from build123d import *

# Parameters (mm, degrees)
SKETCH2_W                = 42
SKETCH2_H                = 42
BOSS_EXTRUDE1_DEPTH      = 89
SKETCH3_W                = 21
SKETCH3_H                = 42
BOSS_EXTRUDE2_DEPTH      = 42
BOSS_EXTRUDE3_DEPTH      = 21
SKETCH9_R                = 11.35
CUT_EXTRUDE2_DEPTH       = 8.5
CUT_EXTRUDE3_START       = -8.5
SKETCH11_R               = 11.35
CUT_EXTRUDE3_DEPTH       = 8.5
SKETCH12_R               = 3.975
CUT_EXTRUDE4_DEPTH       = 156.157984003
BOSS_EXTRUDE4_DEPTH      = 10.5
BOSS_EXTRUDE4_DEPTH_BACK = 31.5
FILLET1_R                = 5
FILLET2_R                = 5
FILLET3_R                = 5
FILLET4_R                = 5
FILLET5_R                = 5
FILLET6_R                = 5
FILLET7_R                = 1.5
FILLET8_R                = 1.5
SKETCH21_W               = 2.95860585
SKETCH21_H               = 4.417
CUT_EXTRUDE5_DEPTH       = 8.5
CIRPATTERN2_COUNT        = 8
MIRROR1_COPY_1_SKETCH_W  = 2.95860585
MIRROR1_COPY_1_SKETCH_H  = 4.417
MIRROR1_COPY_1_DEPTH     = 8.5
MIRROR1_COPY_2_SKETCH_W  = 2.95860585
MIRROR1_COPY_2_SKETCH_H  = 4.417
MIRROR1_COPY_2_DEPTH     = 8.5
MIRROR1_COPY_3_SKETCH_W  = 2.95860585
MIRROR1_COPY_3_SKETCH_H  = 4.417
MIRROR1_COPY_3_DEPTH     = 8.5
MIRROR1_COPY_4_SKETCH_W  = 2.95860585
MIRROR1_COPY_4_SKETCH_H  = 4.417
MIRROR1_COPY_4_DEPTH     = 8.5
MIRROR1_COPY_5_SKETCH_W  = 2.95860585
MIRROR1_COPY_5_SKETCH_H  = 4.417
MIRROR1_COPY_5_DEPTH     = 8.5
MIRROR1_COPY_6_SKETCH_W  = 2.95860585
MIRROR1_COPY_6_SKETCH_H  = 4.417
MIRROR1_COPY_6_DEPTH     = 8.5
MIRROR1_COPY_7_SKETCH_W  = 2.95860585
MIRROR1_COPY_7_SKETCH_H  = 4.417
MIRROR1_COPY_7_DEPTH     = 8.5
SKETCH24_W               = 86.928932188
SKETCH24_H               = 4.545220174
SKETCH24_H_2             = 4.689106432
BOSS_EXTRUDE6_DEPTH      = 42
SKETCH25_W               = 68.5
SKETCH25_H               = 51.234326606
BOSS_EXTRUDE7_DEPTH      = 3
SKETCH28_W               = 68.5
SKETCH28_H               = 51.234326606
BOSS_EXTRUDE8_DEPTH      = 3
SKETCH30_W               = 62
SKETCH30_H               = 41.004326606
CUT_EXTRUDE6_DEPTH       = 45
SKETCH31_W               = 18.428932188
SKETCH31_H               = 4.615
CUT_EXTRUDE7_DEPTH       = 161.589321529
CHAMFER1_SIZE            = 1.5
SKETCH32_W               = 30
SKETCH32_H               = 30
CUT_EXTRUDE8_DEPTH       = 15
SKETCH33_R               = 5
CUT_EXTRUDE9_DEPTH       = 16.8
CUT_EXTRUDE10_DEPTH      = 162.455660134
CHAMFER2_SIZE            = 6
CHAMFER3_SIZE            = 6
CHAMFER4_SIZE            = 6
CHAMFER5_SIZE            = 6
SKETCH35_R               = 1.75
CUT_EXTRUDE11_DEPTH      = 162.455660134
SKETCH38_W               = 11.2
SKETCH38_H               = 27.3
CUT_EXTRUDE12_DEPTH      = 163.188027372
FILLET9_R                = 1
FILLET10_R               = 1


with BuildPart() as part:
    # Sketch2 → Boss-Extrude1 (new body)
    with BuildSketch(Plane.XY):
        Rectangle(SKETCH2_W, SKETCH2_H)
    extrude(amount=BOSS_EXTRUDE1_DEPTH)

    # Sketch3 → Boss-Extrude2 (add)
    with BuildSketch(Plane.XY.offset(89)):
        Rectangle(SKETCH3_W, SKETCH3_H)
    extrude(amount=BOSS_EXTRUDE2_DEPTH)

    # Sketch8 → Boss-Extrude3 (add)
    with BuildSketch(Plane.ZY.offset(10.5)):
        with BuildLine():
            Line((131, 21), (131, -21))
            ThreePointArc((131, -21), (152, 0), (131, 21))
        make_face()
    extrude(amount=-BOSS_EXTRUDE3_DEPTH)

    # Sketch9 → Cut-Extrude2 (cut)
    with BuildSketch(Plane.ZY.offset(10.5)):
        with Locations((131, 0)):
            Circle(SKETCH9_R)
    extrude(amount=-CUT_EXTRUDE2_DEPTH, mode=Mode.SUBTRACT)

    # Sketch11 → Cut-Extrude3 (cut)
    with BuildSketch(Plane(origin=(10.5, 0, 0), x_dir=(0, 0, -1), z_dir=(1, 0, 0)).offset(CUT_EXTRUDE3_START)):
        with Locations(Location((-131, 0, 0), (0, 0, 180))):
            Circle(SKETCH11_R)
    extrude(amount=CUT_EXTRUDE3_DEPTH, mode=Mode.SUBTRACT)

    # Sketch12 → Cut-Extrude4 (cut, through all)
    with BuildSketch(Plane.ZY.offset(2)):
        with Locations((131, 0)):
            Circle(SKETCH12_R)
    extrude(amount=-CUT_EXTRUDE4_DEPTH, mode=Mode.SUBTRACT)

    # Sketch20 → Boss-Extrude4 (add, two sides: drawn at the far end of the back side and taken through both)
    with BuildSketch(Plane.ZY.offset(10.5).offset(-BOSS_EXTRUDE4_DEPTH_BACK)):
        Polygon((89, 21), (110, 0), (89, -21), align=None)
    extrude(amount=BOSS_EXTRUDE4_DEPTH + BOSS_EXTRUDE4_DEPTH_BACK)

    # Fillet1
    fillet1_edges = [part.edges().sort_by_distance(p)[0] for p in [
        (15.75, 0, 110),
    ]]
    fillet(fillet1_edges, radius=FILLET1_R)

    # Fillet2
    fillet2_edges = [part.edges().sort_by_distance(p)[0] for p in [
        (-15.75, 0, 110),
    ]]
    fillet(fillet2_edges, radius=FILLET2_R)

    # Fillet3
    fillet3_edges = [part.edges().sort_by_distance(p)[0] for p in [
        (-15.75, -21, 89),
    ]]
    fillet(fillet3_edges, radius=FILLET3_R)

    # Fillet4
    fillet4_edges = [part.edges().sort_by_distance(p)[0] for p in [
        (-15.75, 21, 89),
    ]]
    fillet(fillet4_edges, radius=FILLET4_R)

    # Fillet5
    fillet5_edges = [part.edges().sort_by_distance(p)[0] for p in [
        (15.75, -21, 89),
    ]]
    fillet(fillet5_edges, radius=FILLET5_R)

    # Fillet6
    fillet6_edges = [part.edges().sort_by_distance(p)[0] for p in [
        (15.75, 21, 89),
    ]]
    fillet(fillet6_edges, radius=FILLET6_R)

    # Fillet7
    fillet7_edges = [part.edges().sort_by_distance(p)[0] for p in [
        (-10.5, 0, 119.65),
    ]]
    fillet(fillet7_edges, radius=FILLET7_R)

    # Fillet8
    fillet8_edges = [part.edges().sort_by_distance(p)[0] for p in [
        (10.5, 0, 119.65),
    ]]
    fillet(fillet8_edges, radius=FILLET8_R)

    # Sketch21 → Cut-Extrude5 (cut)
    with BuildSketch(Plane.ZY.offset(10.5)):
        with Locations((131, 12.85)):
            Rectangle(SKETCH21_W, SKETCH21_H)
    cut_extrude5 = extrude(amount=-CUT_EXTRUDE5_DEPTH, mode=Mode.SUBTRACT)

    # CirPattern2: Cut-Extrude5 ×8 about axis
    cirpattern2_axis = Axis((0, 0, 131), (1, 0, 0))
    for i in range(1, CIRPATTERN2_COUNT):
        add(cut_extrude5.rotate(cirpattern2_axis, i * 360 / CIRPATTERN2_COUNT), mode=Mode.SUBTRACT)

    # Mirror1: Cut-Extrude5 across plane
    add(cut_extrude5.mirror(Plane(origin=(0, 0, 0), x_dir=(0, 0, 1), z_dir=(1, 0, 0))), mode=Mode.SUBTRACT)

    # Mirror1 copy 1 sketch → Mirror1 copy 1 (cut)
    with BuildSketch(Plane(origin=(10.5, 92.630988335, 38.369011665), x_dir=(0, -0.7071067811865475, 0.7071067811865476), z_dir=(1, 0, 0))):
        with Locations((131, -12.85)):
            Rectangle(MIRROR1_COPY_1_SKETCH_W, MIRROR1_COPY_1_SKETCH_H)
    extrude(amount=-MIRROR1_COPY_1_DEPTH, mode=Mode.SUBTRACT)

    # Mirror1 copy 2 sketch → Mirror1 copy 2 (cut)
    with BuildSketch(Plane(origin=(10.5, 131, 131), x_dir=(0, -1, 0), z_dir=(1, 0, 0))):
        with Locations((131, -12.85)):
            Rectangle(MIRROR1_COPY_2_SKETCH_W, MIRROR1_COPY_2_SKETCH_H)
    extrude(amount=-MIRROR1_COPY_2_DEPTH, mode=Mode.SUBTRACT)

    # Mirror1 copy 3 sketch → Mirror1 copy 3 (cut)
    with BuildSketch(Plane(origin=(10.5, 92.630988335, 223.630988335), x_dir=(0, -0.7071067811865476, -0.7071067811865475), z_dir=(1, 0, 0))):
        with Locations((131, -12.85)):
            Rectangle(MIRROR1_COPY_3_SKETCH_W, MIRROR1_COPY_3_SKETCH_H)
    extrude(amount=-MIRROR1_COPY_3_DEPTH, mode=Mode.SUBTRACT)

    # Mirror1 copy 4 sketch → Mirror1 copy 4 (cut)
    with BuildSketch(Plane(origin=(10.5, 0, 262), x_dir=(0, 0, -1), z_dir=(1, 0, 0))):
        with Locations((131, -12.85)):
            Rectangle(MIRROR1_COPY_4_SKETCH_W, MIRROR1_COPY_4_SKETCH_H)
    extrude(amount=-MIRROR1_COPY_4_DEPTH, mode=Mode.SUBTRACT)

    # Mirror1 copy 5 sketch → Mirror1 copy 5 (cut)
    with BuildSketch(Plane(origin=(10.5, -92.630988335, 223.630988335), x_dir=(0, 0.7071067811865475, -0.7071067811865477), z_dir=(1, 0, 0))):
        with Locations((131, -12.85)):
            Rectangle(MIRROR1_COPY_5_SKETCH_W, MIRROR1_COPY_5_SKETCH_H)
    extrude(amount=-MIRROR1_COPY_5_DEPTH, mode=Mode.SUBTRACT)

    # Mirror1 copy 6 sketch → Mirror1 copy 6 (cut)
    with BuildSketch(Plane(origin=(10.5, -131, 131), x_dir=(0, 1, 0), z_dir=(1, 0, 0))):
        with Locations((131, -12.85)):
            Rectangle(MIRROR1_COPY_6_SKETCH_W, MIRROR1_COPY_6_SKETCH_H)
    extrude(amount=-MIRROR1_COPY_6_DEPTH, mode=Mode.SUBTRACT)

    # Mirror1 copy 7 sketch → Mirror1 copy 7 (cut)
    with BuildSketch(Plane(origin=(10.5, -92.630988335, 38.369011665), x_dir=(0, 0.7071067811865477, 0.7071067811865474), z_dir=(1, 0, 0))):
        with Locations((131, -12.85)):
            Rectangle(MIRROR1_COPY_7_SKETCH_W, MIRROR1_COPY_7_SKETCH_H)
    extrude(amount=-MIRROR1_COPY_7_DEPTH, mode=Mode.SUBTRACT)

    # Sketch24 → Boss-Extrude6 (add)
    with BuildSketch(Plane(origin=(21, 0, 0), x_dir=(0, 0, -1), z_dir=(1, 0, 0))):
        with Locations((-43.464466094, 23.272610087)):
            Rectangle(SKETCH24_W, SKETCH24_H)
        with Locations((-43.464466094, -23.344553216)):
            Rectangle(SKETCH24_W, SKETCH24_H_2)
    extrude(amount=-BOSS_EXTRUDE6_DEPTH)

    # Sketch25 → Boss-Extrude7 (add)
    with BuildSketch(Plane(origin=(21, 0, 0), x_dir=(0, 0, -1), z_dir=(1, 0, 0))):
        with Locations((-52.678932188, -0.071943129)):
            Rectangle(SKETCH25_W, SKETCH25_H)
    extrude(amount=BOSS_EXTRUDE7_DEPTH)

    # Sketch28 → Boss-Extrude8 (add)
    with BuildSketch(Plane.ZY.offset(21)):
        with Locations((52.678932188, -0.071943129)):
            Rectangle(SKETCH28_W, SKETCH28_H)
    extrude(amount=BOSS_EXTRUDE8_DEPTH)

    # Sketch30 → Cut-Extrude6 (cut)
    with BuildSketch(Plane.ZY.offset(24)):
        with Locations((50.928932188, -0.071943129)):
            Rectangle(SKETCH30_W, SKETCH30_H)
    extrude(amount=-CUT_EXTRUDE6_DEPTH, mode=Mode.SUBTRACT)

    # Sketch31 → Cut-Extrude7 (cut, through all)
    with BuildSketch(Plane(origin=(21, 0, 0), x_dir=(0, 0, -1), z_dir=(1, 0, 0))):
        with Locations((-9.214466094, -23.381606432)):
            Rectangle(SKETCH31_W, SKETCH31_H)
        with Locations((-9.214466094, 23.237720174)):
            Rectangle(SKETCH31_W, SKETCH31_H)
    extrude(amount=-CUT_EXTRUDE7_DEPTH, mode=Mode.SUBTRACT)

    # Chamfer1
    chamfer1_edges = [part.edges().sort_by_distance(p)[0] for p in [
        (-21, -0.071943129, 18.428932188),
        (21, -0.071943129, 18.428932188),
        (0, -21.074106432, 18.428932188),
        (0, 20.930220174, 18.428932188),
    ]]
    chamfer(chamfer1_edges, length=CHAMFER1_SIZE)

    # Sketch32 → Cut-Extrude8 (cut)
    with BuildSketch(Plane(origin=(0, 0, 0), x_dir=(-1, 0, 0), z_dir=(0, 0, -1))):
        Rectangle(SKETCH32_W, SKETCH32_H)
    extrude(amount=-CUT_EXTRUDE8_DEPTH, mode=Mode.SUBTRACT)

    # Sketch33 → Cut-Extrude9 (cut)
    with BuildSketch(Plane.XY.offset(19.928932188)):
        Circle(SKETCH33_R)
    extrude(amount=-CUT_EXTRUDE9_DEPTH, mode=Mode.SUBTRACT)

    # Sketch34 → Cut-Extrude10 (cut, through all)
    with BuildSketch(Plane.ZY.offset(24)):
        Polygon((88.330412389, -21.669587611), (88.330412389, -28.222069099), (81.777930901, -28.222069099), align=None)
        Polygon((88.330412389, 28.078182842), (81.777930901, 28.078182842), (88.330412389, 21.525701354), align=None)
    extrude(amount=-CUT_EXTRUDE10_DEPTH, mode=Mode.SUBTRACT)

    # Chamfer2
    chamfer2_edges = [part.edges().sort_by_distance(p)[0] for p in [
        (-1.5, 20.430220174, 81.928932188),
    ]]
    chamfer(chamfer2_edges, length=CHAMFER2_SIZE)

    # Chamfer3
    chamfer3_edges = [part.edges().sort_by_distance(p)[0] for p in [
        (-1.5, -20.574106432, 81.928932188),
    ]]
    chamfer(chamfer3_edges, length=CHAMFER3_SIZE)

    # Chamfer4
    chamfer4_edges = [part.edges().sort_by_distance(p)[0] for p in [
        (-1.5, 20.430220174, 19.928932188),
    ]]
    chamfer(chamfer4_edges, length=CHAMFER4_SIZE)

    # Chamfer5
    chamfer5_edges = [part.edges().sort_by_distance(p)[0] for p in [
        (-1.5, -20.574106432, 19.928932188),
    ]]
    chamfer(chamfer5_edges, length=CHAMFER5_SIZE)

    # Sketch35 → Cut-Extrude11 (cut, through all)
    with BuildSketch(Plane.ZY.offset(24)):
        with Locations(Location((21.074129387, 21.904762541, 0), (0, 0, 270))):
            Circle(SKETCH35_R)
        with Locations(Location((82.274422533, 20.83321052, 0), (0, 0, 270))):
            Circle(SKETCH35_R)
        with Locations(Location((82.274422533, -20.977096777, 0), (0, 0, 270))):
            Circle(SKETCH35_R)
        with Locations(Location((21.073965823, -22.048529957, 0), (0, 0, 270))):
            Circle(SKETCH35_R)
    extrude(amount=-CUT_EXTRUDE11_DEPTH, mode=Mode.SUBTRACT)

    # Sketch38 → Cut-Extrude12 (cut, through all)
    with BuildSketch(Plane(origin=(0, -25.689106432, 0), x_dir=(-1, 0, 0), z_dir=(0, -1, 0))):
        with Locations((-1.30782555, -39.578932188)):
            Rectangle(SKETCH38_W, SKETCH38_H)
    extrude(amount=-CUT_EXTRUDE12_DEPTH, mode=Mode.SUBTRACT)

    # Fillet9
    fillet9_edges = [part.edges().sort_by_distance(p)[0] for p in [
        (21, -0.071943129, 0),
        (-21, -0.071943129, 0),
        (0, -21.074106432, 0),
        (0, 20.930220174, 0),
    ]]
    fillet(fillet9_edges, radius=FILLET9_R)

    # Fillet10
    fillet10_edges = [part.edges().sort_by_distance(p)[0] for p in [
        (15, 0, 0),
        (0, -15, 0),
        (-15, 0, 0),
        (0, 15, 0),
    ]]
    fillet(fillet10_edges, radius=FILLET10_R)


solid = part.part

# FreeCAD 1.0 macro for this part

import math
import FreeCAD as App
import Part
import Sketcher

V = App.Vector
Q = App.Units.Quantity


def edges_at(feature, points):
    """Names of the edges that pass closest to the given points."""
    edges = feature.Shape.Edges
    near = lambda p: min(range(len(edges)), key=lambda i: edges[i].distToShape(Part.Vertex(*p))[0])
    return sorted({f"Edge{near(p) + 1}" for p in points})


def add_polygon(sketch, points):
    """Adds a closed chain of lines whose ends are joined by coincident constraints."""
    first, n = sketch.GeometryCount, len(points)
    for a, b in zip(points, points[1:] + points[:1]):
        sketch.addGeometry(Part.LineSegment(App.Vector(*a, 0), App.Vector(*b, 0)), False)
    for i in range(n):
        sketch.addConstraint(Sketcher.Constraint("Coincident", first + i, 2, first + (i + 1) % n, 1))

doc = App.newDocument("Part")
body = doc.addObject("PartDesign::Body", "Body")

# Sketch on XY plane
sketch1 = doc.addObject("Sketcher::SketchObject", "Sketch")
body.addObject(sketch1)
sketch1.AttachmentSupport = (doc.XY_Plane, [""])
sketch1.MapMode = "FlatFace"
add_polygon(sketch1, [(-21, 21), (-21, -21), (21, -21), (21, 21)])  # lines 0-3
sketch1.addConstraint([
    Sketcher.Constraint("Vertical", 0),
    Sketcher.Constraint("Horizontal", 1),
    Sketcher.Constraint("Vertical", 2),
    Sketcher.Constraint("Horizontal", 3),
    Sketcher.Constraint("Symmetric", 0, 2, 2, 2, -1, 1),
    Sketcher.Constraint("Equal", 3, 0),
    Sketcher.Constraint("DistanceX", 1, 1, 1, 2, 42.0),
])
pad1 = doc.addObject("PartDesign::Pad", "Pad")
body.addObject(pad1)
pad1.Profile = sketch1
pad1.Length = 89

# Sketch on XY plane
sketch2 = doc.addObject("Sketcher::SketchObject", "Sketch001")
body.addObject(sketch2)
sketch2.AttachmentSupport = (doc.XY_Plane, [""])
sketch2.MapMode = "FlatFace"
sketch2.AttachmentOffset = App.Placement(V(0, 0, 89), App.Rotation())
add_polygon(sketch2, [(-10, 21), (-10, -21), (10, -21), (10, 21)])  # lines 0-3
sketch2.addConstraint([
    Sketcher.Constraint("Vertical", 0),
    Sketcher.Constraint("Horizontal", 1),
    Sketcher.Constraint("Vertical", 2),
    Sketcher.Constraint("Horizontal", 3),
    Sketcher.Constraint("Symmetric", 0, 2, 2, 2, -1, 1),
    Sketcher.Constraint("DistanceX", 1, 1, 1, 2, 21.0),
    Sketcher.Constraint("DistanceY", 0, 2, 0, 1, 42.0),
])
pad2 = doc.addObject("PartDesign::Pad", "Pad001")
body.addObject(pad2)
pad2.Profile = sketch2
pad2.Length = 42

# Sketch on YZ plane
sketch3 = doc.addObject("Sketcher::SketchObject", "Sketch002")
body.addObject(sketch3)
sketch3.AttachmentSupport = (doc.YZ_Plane, [""])
sketch3.MapMode = "FlatFace"
sketch3.AttachmentOffset = App.Placement(V(0, 0, -10.5), App.Rotation())
sketch3.addGeometry([
    Part.LineSegment(V(21, 131, 0), V(-21, 131, 0)),
    Part.ArcOfCircle(Part.Circle(V(0, 131, 0), V(0, 0, 1), 21), math.radians(0), math.radians(180)),
], False)
sketch3.addConstraint([
    Sketcher.Constraint("Coincident", 0, 1, 1, 1),
    Sketcher.Constraint("Coincident", 1, 2, 0, 2),
    Sketcher.Constraint("Horizontal", 0),
    Sketcher.Constraint("PointOnObject", 1, 3, -2),
    Sketcher.Constraint("Horizontal", 1, 3, 0, 1),
    Sketcher.Constraint("Radius", 1, 21.0),
    Sketcher.Constraint("DistanceY", -1, 1, 1, 3, 131.0),
])
pad3 = doc.addObject("PartDesign::Pad", "Pad002")
body.addObject(pad3)
pad3.Profile = sketch3
pad3.Length = 21

# Sketch on YZ plane
sketch4 = doc.addObject("Sketcher::SketchObject", "Sketch003")
body.addObject(sketch4)
sketch4.AttachmentSupport = (doc.YZ_Plane, [""])
sketch4.MapMode = "FlatFace"
sketch4.AttachmentOffset = App.Placement(V(0, 0, -10.5), App.Rotation())
sketch4.addGeometry(Part.Circle(V(0, 131, 0), V(0, 0, 1), 11), False)
sketch4.addConstraint([
    Sketcher.Constraint("PointOnObject", 0, 3, -2),
    Sketcher.Constraint("Diameter", 0, 22.7),
    Sketcher.Constraint("DistanceY", -1, 1, 0, 3, 131.0),
])
pocket1 = doc.addObject("PartDesign::Pocket", "Pocket")
body.addObject(pocket1)
pocket1.Profile = sketch4
pocket1.Length = 8.5
pocket1.Reversed = True

# Sketch on YZ plane
sketch5 = doc.addObject("Sketcher::SketchObject", "Sketch004")
body.addObject(sketch5)
sketch5.AttachmentSupport = (doc.YZ_Plane, [""])
sketch5.MapMode = "FlatFace"
sketch5.AttachmentOffset = App.Placement(V(0, 0, 2), App.Rotation())
sketch5.addGeometry(Part.Circle(V(0, 131, 0), V(0, 0, 1), 11), False)
sketch5.addConstraint([
    Sketcher.Constraint("PointOnObject", 0, 3, -2),
    Sketcher.Constraint("Diameter", 0, 22.7),
    Sketcher.Constraint("DistanceY", -1, 1, 0, 3, 131.0),
])
pocket2 = doc.addObject("PartDesign::Pocket", "Pocket001")
body.addObject(pocket2)
pocket2.Profile = sketch5
pocket2.Length = 8.5
pocket2.Reversed = True

# Sketch on YZ plane
sketch6 = doc.addObject("Sketcher::SketchObject", "Sketch005")
body.addObject(sketch6)
sketch6.AttachmentSupport = (doc.YZ_Plane, [""])
sketch6.MapMode = "FlatFace"
sketch6.AttachmentOffset = App.Placement(V(0, 0, -2), App.Rotation())
sketch6.addGeometry(Part.Circle(V(0, 131, 0), V(0, 0, 1), 4), False)
sketch6.addConstraint([
    Sketcher.Constraint("PointOnObject", 0, 3, -2),
    Sketcher.Constraint("Diameter", 0, 7.95),
    Sketcher.Constraint("DistanceY", -1, 1, 0, 3, 131.0),
])
pocket3 = doc.addObject("PartDesign::Pocket", "Pocket002")
body.addObject(pocket3)
pocket3.Profile = sketch6
pocket3.Type = "ThroughAll"
pocket3.Reversed = True

# Sketch on YZ plane
sketch7 = doc.addObject("Sketcher::SketchObject", "Sketch006")
body.addObject(sketch7)
sketch7.AttachmentSupport = (doc.YZ_Plane, [""])
sketch7.MapMode = "FlatFace"
sketch7.AttachmentOffset = App.Placement(V(0, 0, -10.5), App.Rotation())
add_polygon(sketch7, [(0, 110), (21, 89), (-21, 89)])  # lines 0-2
sketch7.addConstraint([
    Sketcher.Constraint("Horizontal", 1),
    Sketcher.Constraint("PointOnObject", 2, 2, -2),
    Sketcher.Constraint("Perpendicular", 0, 2),
    Sketcher.Constraint("Equal", 0, 2),
    Sketcher.Constraint("DistanceX", 1, 2, 1, 1, 42.0),
    Sketcher.Constraint("DistanceY", -1, 1, 0, 2, 89.0),
])
pad4 = doc.addObject("PartDesign::Pad", "Pad003")
body.addObject(pad4)
pad4.Profile = sketch7
pad4.Type = "TwoLengths"
pad4.Length = 10.5
pad4.Length2 = 31.5
pad4.Reversed = True
doc.recompute()

fillet = doc.addObject("PartDesign::Fillet", "Fillet")
body.addObject(fillet)
fillet.Base = (pad4, edges_at(pad4, [(15.75, 0, 110)]))
fillet.Radius = 5
doc.recompute()

fillet2 = doc.addObject("PartDesign::Fillet", "Fillet001")
body.addObject(fillet2)
fillet2.Base = (fillet, edges_at(fillet, [(-15.75, 0, 110)]))
fillet2.Radius = 5
doc.recompute()

fillet3 = doc.addObject("PartDesign::Fillet", "Fillet002")
body.addObject(fillet3)
fillet3.Base = (fillet2, edges_at(fillet2, [(-15.75, -21, 89)]))
fillet3.Radius = 5
doc.recompute()

fillet4 = doc.addObject("PartDesign::Fillet", "Fillet003")
body.addObject(fillet4)
fillet4.Base = (fillet3, edges_at(fillet3, [(-15.75, 21, 89)]))
fillet4.Radius = 5
doc.recompute()

fillet5 = doc.addObject("PartDesign::Fillet", "Fillet004")
body.addObject(fillet5)
fillet5.Base = (fillet4, edges_at(fillet4, [(15.75, -21, 89)]))
fillet5.Radius = 5
doc.recompute()

fillet6 = doc.addObject("PartDesign::Fillet", "Fillet005")
body.addObject(fillet6)
fillet6.Base = (fillet5, edges_at(fillet5, [(15.75, 21, 89)]))
fillet6.Radius = 5
doc.recompute()

fillet7 = doc.addObject("PartDesign::Fillet", "Fillet006")
body.addObject(fillet7)
fillet7.Base = (fillet6, edges_at(fillet6, [(-10.5, 0, 119.65)]))
fillet7.Radius = 1.5
doc.recompute()

fillet8 = doc.addObject("PartDesign::Fillet", "Fillet007")
body.addObject(fillet8)
fillet8.Base = (fillet7, edges_at(fillet7, [(10.5, 0, 119.65)]))
fillet8.Radius = 1.5

# Sketch on YZ plane
sketch8 = doc.addObject("Sketcher::SketchObject", "Sketch007")
body.addObject(sketch8)
sketch8.AttachmentSupport = (doc.YZ_Plane, [""])
sketch8.MapMode = "FlatFace"
sketch8.AttachmentOffset = App.Placement(V(0, 0, -10.5), App.Rotation())
add_polygon(sketch8, [(15.1, 129.5), (10.6, 129.5), (10.6, 132.5), (15.1, 132.5)])  # lines 0-3
sketch8.addConstraint([
    Sketcher.Constraint("Horizontal", 0),
    Sketcher.Constraint("Vertical", 1),
    Sketcher.Constraint("Horizontal", 2),
    Sketcher.Constraint("Vertical", 3),
    Sketcher.Constraint("DistanceX", 0, 2, 0, 1, 4.417),
    Sketcher.Constraint("DistanceX", -1, 1, 0, 2, 10.6415),
    Sketcher.Constraint("DistanceY", 1, 1, 1, 2, 2.958606),
    Sketcher.Constraint("DistanceY", -1, 1, 0, 2, 129.520697),
])
pocket4 = doc.addObject("PartDesign::Pocket", "Pocket003")
body.addObject(pocket4)
pocket4.Profile = sketch8
pocket4.Length = 8.5
pocket4.Reversed = True
doc.recompute()

datumline = doc.addObject("PartDesign::Line", "DatumLine")
body.addObject(datumline)
datumline.Placement = App.Placement(V(0, 0, 131), App.Rotation(V(0, 0, 1), V(1, 0, 0)))
polarpattern = doc.addObject("PartDesign::PolarPattern", "PolarPattern")
body.addObject(polarpattern)
polarpattern.Originals = [pocket4]
polarpattern.Axis = (datumline, [""])
polarpattern.Angle = 360
polarpattern.Occurrences = 8
body.Tip = polarpattern
doc.recompute()

mirrored = doc.addObject("PartDesign::Mirrored", "Mirrored")
body.addObject(mirrored)
mirrored.Originals = [pocket4]
mirrored.MirrorPlane = (doc.YZ_Plane, [""])
body.Tip = mirrored

# Sketch on YZ plane
sketch9 = doc.addObject("Sketcher::SketchObject", "Sketch008")
body.addObject(sketch9)
sketch9.AttachmentSupport = (doc.YZ_Plane, [""])
sketch9.MapMode = "FlatFace"
sketch9.AttachmentOffset = App.Placement(V(0, 0, 10.5), App.Rotation())
add_polygon(sketch9, [(8.6, 137.5), (11.7, 140.6), (9.6, 142.7), (6.5, 139.6)])  # lines 0-3
sketch9.addConstraint([
    Sketcher.Constraint("Perpendicular", 0, 1),
    Sketcher.Constraint("Perpendicular", 1, 2),
    Sketcher.Constraint("Perpendicular", 2, 3),
    Sketcher.Constraint("Angle", 0, Q("45 deg")),
    Sketcher.Constraint("Distance", 0, 4.417),
    Sketcher.Constraint("DistanceY", -1, 1, 2, 2, 139.570702),
    Sketcher.Constraint("DistanceX", -1, 1, 3, 2, 8.570702),
    Sketcher.Constraint("DistanceX", -1, 1, 2, 2, 6.478652),
])
pocket5 = doc.addObject("PartDesign::Pocket", "Pocket004")
body.addObject(pocket5)
pocket5.Profile = sketch9
pocket5.Length = 8.5

# Sketch on YZ plane
sketch10 = doc.addObject("Sketcher::SketchObject", "Sketch009")
body.addObject(sketch10)
sketch10.AttachmentSupport = (doc.YZ_Plane, [""])
sketch10.MapMode = "FlatFace"
sketch10.AttachmentOffset = App.Placement(V(0, 0, 10.5), App.Rotation())
add_polygon(sketch10, [(1.5, 141.6), (1.5, 146.1), (-1.5, 146.1), (-1.5, 141.6)])  # lines 0-3
sketch10.addConstraint([
    Sketcher.Constraint("Vertical", 0),
    Sketcher.Constraint("Horizontal", 1),
    Sketcher.Constraint("Vertical", 2),
    Sketcher.Constraint("Horizontal", 3),
    Sketcher.Constraint("DistanceY", 0, 1, 0, 2, 4.417),
    Sketcher.Constraint("DistanceY", -1, 1, 0, 2, 146.0585),
    Sketcher.Constraint("DistanceX", 1, 2, 1, 1, 2.958606),
    Sketcher.Constraint("DistanceX", -1, 1, 0, 2, 1.479303),
])
pocket6 = doc.addObject("PartDesign::Pocket", "Pocket005")
body.addObject(pocket6)
pocket6.Profile = sketch10
pocket6.Length = 8.5

# Sketch on YZ plane
sketch11 = doc.addObject("Sketcher::SketchObject", "Sketch010")
body.addObject(sketch11)
sketch11.AttachmentSupport = (doc.YZ_Plane, [""])
sketch11.MapMode = "FlatFace"
sketch11.AttachmentOffset = App.Placement(V(0, 0, 10.5), App.Rotation())
add_polygon(sketch11, [(-6.5, 139.6), (-9.6, 142.7), (-11.7, 140.6), (-8.6, 137.5)])  # lines 0-3
sketch11.addConstraint([
    Sketcher.Constraint("Perpendicular", 0, 1),
    Sketcher.Constraint("Perpendicular", 1, 2),
    Sketcher.Constraint("Perpendicular", 2, 3),
    Sketcher.Constraint("Angle", 0, Q("135 deg")),
    Sketcher.Constraint("Distance", 0, 4.417),
    Sketcher.Constraint("DistanceX", 2, 2, -1, 1, 8.570702),
    Sketcher.Constraint("DistanceY", -1, 1, 3, 2, 139.570702),
    Sketcher.Constraint("DistanceY", -1, 1, 2, 2, 137.478652),
])
pocket7 = doc.addObject("PartDesign::Pocket", "Pocket006")
body.addObject(pocket7)
pocket7.Profile = sketch11
pocket7.Length = 8.5

# Sketch on YZ plane
sketch12 = doc.addObject("Sketcher::SketchObject", "Sketch011")
body.addObject(sketch12)
sketch12.AttachmentSupport = (doc.YZ_Plane, [""])
sketch12.MapMode = "FlatFace"
sketch12.AttachmentOffset = App.Placement(V(0, 0, 10.5), App.Rotation())
add_polygon(sketch12, [(-10.6, 132.5), (-15.1, 132.5), (-15.1, 129.5), (-10.6, 129.5)])  # lines 0-3
sketch12.addConstraint([
    Sketcher.Constraint("Horizontal", 0),
    Sketcher.Constraint("Vertical", 1),
    Sketcher.Constraint("Horizontal", 2),
    Sketcher.Constraint("Vertical", 3),
    Sketcher.Constraint("DistanceX", 0, 2, 0, 1, 4.417),
    Sketcher.Constraint("DistanceX", 0, 2, -1, 1, 15.0585),
    Sketcher.Constraint("DistanceY", 1, 2, 1, 1, 2.958606),
    Sketcher.Constraint("DistanceY", -1, 1, 0, 2, 132.479303),
])
pocket8 = doc.addObject("PartDesign::Pocket", "Pocket007")
body.addObject(pocket8)
pocket8.Profile = sketch12
pocket8.Length = 8.5

# Sketch on YZ plane
sketch13 = doc.addObject("Sketcher::SketchObject", "Sketch012")
body.addObject(sketch13)
sketch13.AttachmentSupport = (doc.YZ_Plane, [""])
sketch13.MapMode = "FlatFace"
sketch13.AttachmentOffset = App.Placement(V(0, 0, 10.5), App.Rotation())
add_polygon(sketch13, [(-8.6, 124.5), (-11.7, 121.4), (-9.6, 119.3), (-6.5, 122.4)])  # lines 0-3
sketch13.addConstraint([
    Sketcher.Constraint("Perpendicular", 0, 1),
    Sketcher.Constraint("Perpendicular", 1, 2),
    Sketcher.Constraint("Perpendicular", 2, 3),
    Sketcher.Constraint("Angle", 0, Q("-135 deg")),
    Sketcher.Constraint("Distance", 0, 4.417),
    Sketcher.Constraint("DistanceY", -1, 1, 2, 2, 122.429298),
    Sketcher.Constraint("DistanceX", 3, 2, -1, 1, 8.570702),
    Sketcher.Constraint("DistanceX", 2, 2, -1, 1, 6.478652),
])
pocket9 = doc.addObject("PartDesign::Pocket", "Pocket008")
body.addObject(pocket9)
pocket9.Profile = sketch13
pocket9.Length = 8.5

# Sketch on YZ plane
sketch14 = doc.addObject("Sketcher::SketchObject", "Sketch013")
body.addObject(sketch14)
sketch14.AttachmentSupport = (doc.YZ_Plane, [""])
sketch14.MapMode = "FlatFace"
sketch14.AttachmentOffset = App.Placement(V(0, 0, 10.5), App.Rotation())
add_polygon(sketch14, [(-1.5, 120.4), (-1.5, 115.9), (1.5, 115.9), (1.5, 120.4)])  # lines 0-3
sketch14.addConstraint([
    Sketcher.Constraint("Vertical", 0),
    Sketcher.Constraint("Horizontal", 1),
    Sketcher.Constraint("Vertical", 2),
    Sketcher.Constraint("Horizontal", 3),
    Sketcher.Constraint("DistanceY", 0, 2, 0, 1, 4.417),
    Sketcher.Constraint("DistanceY", -1, 1, 0, 2, 115.9415),
    Sketcher.Constraint("DistanceX", 1, 1, 1, 2, 2.958606),
    Sketcher.Constraint("DistanceX", 0, 2, -1, 1, 1.479303),
])
pocket10 = doc.addObject("PartDesign::Pocket", "Pocket009")
body.addObject(pocket10)
pocket10.Profile = sketch14
pocket10.Length = 8.5

# Sketch on YZ plane
sketch15 = doc.addObject("Sketcher::SketchObject", "Sketch014")
body.addObject(sketch15)
sketch15.AttachmentSupport = (doc.YZ_Plane, [""])
sketch15.MapMode = "FlatFace"
sketch15.AttachmentOffset = App.Placement(V(0, 0, 10.5), App.Rotation())
add_polygon(sketch15, [(6.5, 122.4), (9.6, 119.3), (11.7, 121.4), (8.6, 124.5)])  # lines 0-3
sketch15.addConstraint([
    Sketcher.Constraint("Perpendicular", 0, 1),
    Sketcher.Constraint("Perpendicular", 1, 2),
    Sketcher.Constraint("Perpendicular", 2, 3),
    Sketcher.Constraint("Angle", 0, Q("-45 deg")),
    Sketcher.Constraint("Distance", 0, 4.417),
    Sketcher.Constraint("DistanceX", -1, 1, 2, 2, 8.570702),
    Sketcher.Constraint("DistanceY", -1, 1, 3, 2, 122.429298),
    Sketcher.Constraint("DistanceY", -1, 1, 2, 2, 124.521348),
])
pocket11 = doc.addObject("PartDesign::Pocket", "Pocket010")
body.addObject(pocket11)
pocket11.Profile = sketch15
pocket11.Length = 8.5

# Sketch on YZ plane
sketch16 = doc.addObject("Sketcher::SketchObject", "Sketch015")
body.addObject(sketch16)
sketch16.AttachmentSupport = (doc.YZ_Plane, [""])
sketch16.MapMode = "FlatFace"
sketch16.AttachmentOffset = App.Placement(V(0, 0, 21), App.Rotation())
add_polygon(sketch16, [(25.5, 86.9), (21, 86.9), (21, 0), (25.5, 0)])  # lines 0-3
add_polygon(sketch16, [(-21, 86.9), (-25.7, 86.9), (-25.7, 0), (-21, 0)])  # lines 4-7
sketch16.addConstraint([
    Sketcher.Constraint("Horizontal", 0),
    Sketcher.Constraint("Vertical", 1),
    Sketcher.Constraint("Horizontal", 2),
    Sketcher.Constraint("Vertical", 3),
    Sketcher.Constraint("Horizontal", 4),
    Sketcher.Constraint("Vertical", 5),
    Sketcher.Constraint("Horizontal", 6),
    Sketcher.Constraint("Vertical", 7),
    Sketcher.Constraint("Symmetric", 1, 2, 6, 2, -1, 1),
    Sketcher.Constraint("PointOnObject", 1, 2, -1),
    Sketcher.Constraint("Horizontal", 3, 2, 4, 2),
    Sketcher.Constraint("DistanceX", -1, 1, 0, 2, 21.0),
    Sketcher.Constraint("DistanceX", 0, 2, 0, 1, 4.54522),
    Sketcher.Constraint("DistanceX", 4, 2, 4, 1, 4.689106),
    Sketcher.Constraint("DistanceY", 1, 2, 1, 1, 86.928932),
])
pad5 = doc.addObject("PartDesign::Pad", "Pad004")
body.addObject(pad5)
pad5.Profile = sketch16
pad5.Length = 42
pad5.Reversed = True

# Sketch on YZ plane
sketch17 = doc.addObject("Sketcher::SketchObject", "Sketch016")
body.addObject(sketch17)
sketch17.AttachmentSupport = (doc.YZ_Plane, [""])
sketch17.MapMode = "FlatFace"
sketch17.AttachmentOffset = App.Placement(V(0, 0, 21), App.Rotation())
add_polygon(sketch17, [(26, 87), (-26, 87), (-26, 18), (26, 18)])  # lines 0-3
sketch17.addConstraint([
    Sketcher.Constraint("Horizontal", 0),
    Sketcher.Constraint("Vertical", 1),
    Sketcher.Constraint("Horizontal", 2),
    Sketcher.Constraint("Vertical", 3),
    Sketcher.Constraint("DistanceY", 1, 2, 1, 1, 68.5),
    Sketcher.Constraint("DistanceX", 0, 2, 0, 1, 51.234327),
    Sketcher.Constraint("DistanceX", -1, 1, 2, 2, 25.54522),
    Sketcher.Constraint("DistanceY", -1, 1, 0, 2, 86.928932),
])
pad6 = doc.addObject("PartDesign::Pad", "Pad005")
body.addObject(pad6)
pad6.Profile = sketch17
pad6.Length = 3

# Sketch on YZ plane
sketch18 = doc.addObject("Sketcher::SketchObject", "Sketch017")
body.addObject(sketch18)
sketch18.AttachmentSupport = (doc.YZ_Plane, [""])
sketch18.MapMode = "FlatFace"
sketch18.AttachmentOffset = App.Placement(V(0, 0, -21), App.Rotation())
add_polygon(sketch18, [(26, 18), (-26, 18), (-26, 87), (26, 87)])  # lines 0-3
sketch18.addConstraint([
    Sketcher.Constraint("Horizontal", 0),
    Sketcher.Constraint("Vertical", 1),
    Sketcher.Constraint("Horizontal", 2),
    Sketcher.Constraint("Vertical", 3),
    Sketcher.Constraint("DistanceY", 1, 1, 1, 2, 68.5),
    Sketcher.Constraint("DistanceX", 0, 2, 0, 1, 51.234327),
    Sketcher.Constraint("DistanceX", -1, 1, 2, 2, 25.54522),
    Sketcher.Constraint("DistanceY", -1, 1, 0, 2, 18.428932),
])
pad7 = doc.addObject("PartDesign::Pad", "Pad006")
body.addObject(pad7)
pad7.Profile = sketch18
pad7.Length = 3
pad7.Reversed = True

# Sketch on YZ plane
sketch19 = doc.addObject("Sketcher::SketchObject", "Sketch018")
body.addObject(sketch19)
sketch19.AttachmentSupport = (doc.YZ_Plane, [""])
sketch19.MapMode = "FlatFace"
sketch19.AttachmentOffset = App.Placement(V(0, 0, -24), App.Rotation())
add_polygon(sketch19, [(20, 20), (-21, 20), (-21, 82), (20, 82)])  # lines 0-3
sketch19.addConstraint([
    Sketcher.Constraint("Horizontal", 0),
    Sketcher.Constraint("Vertical", 1),
    Sketcher.Constraint("Horizontal", 2),
    Sketcher.Constraint("Vertical", 3),
    Sketcher.Constraint("DistanceY", 1, 1, 1, 2, 62.0),
    Sketcher.Constraint("DistanceX", 0, 2, 0, 1, 41.004327),
    Sketcher.Constraint("DistanceX", -1, 1, 2, 2, 20.43022),
    Sketcher.Constraint("DistanceY", -1, 1, 0, 2, 19.928932),
])
pocket12 = doc.addObject("PartDesign::Pocket", "Pocket011")
body.addObject(pocket12)
pocket12.Profile = sketch19
pocket12.Length = 45
pocket12.Reversed = True

# Sketch on YZ plane
sketch20 = doc.addObject("Sketcher::SketchObject", "Sketch019")
body.addObject(sketch20)
sketch20.AttachmentSupport = (doc.YZ_Plane, [""])
sketch20.MapMode = "FlatFace"
sketch20.AttachmentOffset = App.Placement(V(0, 0, 21), App.Rotation())
add_polygon(sketch20, [(-21.1, 18.4), (-25.7, 18.4), (-25.7, 0), (-21.1, 0)])  # lines 0-3
add_polygon(sketch20, [(25.5, 18.4), (20.9, 18.4), (20.9, 0), (25.5, 0)])  # lines 4-7
sketch20.addConstraint([
    Sketcher.Constraint("Horizontal", 0),
    Sketcher.Constraint("Vertical", 1),
    Sketcher.Constraint("Horizontal", 2),
    Sketcher.Constraint("Vertical", 3),
    Sketcher.Constraint("Horizontal", 4),
    Sketcher.Constraint("Vertical", 5),
    Sketcher.Constraint("Horizontal", 6),
    Sketcher.Constraint("Vertical", 7),
    Sketcher.Constraint("PointOnObject", 1, 2, -1),
    Sketcher.Constraint("PointOnObject", 5, 2, -1),
    Sketcher.Constraint("Horizontal", 3, 2, 4, 2),
    Sketcher.Constraint("Equal", 2, 4),
    Sketcher.Constraint("DistanceX", 0, 2, 0, 1, 4.615),
    Sketcher.Constraint("DistanceY", 1, 2, 1, 1, 18.428932),
    Sketcher.Constraint("DistanceX", -1, 1, 4, 2, 20.93022),
    Sketcher.Constraint("DistanceX", 0, 2, -1, 1, 25.689106),
])
pocket13 = doc.addObject("PartDesign::Pocket", "Pocket012")
body.addObject(pocket13)
pocket13.Profile = sketch20
pocket13.Type = "ThroughAll"
doc.recompute()

chamfer = doc.addObject("PartDesign::Chamfer", "Chamfer")
body.addObject(chamfer)
chamfer.Base = (pocket13, edges_at(pocket13, [
    (-21, -0.072, 18.429),
    (21, -0.072, 18.429),
    (0, -21.074, 18.429),
    (0, 20.93, 18.429),
]))
chamfer.Size = 1.5

# Sketch on XY plane
sketch21 = doc.addObject("Sketcher::SketchObject", "Sketch020")
body.addObject(sketch21)
sketch21.AttachmentSupport = (doc.XY_Plane, [""])
sketch21.MapMode = "FlatFace"
add_polygon(sketch21, [(15, 15), (15, -15), (-15, -15), (-15, 15)])  # lines 0-3
sketch21.addConstraint([
    Sketcher.Constraint("Vertical", 0),
    Sketcher.Constraint("Horizontal", 1),
    Sketcher.Constraint("Vertical", 2),
    Sketcher.Constraint("Horizontal", 3),
    Sketcher.Constraint("Symmetric", 0, 2, 2, 2, -1, 1),
    Sketcher.Constraint("Equal", 3, 0),
    Sketcher.Constraint("DistanceX", 1, 2, 1, 1, 30.0),
])
pocket14 = doc.addObject("PartDesign::Pocket", "Pocket013")
body.addObject(pocket14)
pocket14.Profile = sketch21
pocket14.Length = 15
pocket14.Reversed = True

# Sketch on XY plane
sketch22 = doc.addObject("Sketcher::SketchObject", "Sketch021")
body.addObject(sketch22)
sketch22.AttachmentSupport = (doc.XY_Plane, [""])
sketch22.MapMode = "FlatFace"
sketch22.AttachmentOffset = App.Placement(V(0, 0, 19.928932), App.Rotation())
sketch22.addGeometry(Part.Circle(V(0, 0, 0), V(0, 0, 1), 5), False)
sketch22.addConstraint([
    Sketcher.Constraint("Coincident", 0, 3, -1, 1),
    Sketcher.Constraint("Diameter", 0, 10.0),
])
pocket15 = doc.addObject("PartDesign::Pocket", "Pocket014")
body.addObject(pocket15)
pocket15.Profile = sketch22
pocket15.Length = 16.8

# Sketch on YZ plane
sketch23 = doc.addObject("Sketcher::SketchObject", "Sketch022")
body.addObject(sketch23)
sketch23.AttachmentSupport = (doc.YZ_Plane, [""])
sketch23.MapMode = "FlatFace"
sketch23.AttachmentOffset = App.Placement(V(0, 0, -24), App.Rotation())
add_polygon(sketch23, [(-28, 88), (-22, 88), (-28, 82)])  # lines 0-2
add_polygon(sketch23, [(28, 88), (28, 82), (22, 88)])  # lines 3-5
sketch23.addConstraint([
    Sketcher.Constraint("Horizontal", 0),
    Sketcher.Constraint("Vertical", 2),
    Sketcher.Constraint("Vertical", 3),
    Sketcher.Constraint("Horizontal", 5),
    Sketcher.Constraint("Perpendicular", 1, 4),
    Sketcher.Constraint("Horizontal", 1, 2, 3, 2),
    Sketcher.Constraint("Horizontal", 2, 2, 4, 2),
    Sketcher.Constraint("Equal", 0, 5),
    Sketcher.Constraint("DistanceX", 0, 1, 0, 2, 6.552481),
    Sketcher.Constraint("DistanceX", -1, 1, 4, 2, 21.525701),
    Sketcher.Constraint("DistanceX", 1, 2, -1, 1, 28.222069),
    Sketcher.Constraint("DistanceY", -1, 1, 1, 2, 81.777931),
])
pocket16 = doc.addObject("PartDesign::Pocket", "Pocket015")
body.addObject(pocket16)
pocket16.Profile = sketch23
pocket16.Type = "ThroughAll"
pocket16.Reversed = True
doc.recompute()

chamfer2 = doc.addObject("PartDesign::Chamfer", "Chamfer001")
body.addObject(chamfer2)
chamfer2.Base = (pocket16, edges_at(pocket16, [(-1.5, 20.43, 81.929)]))
chamfer2.Size = 6
doc.recompute()

chamfer3 = doc.addObject("PartDesign::Chamfer", "Chamfer002")
body.addObject(chamfer3)
chamfer3.Base = (chamfer2, edges_at(chamfer2, [(-1.5, -20.574, 81.929)]))
chamfer3.Size = 6
doc.recompute()

chamfer4 = doc.addObject("PartDesign::Chamfer", "Chamfer003")
body.addObject(chamfer4)
chamfer4.Base = (chamfer3, edges_at(chamfer3, [(-1.5, 20.43, 19.929)]))
chamfer4.Size = 6
doc.recompute()

chamfer5 = doc.addObject("PartDesign::Chamfer", "Chamfer004")
body.addObject(chamfer5)
chamfer5.Base = (chamfer4, edges_at(chamfer4, [(-1.5, -20.574, 19.929)]))
chamfer5.Size = 6

# Sketch on YZ plane
sketch24 = doc.addObject("Sketcher::SketchObject", "Sketch023")
body.addObject(sketch24)
sketch24.AttachmentSupport = (doc.YZ_Plane, [""])
sketch24.MapMode = "FlatFace"
sketch24.AttachmentOffset = App.Placement(V(0, 0, -24), App.Rotation())
sketch24.addGeometry([
    Part.Circle(V(21.9, 21.1, 0), V(0, 0, 1), 1.8),
    Part.Circle(V(20.8, 82.3, 0), V(0, 0, 1), 1.8),
    Part.Circle(V(-21, 82.3, 0), V(0, 0, 1), 1.8),
    Part.Circle(V(-22, 21.1, 0), V(0, 0, 1), 1.8),
], False)
sketch24.addConstraint([
    Sketcher.Constraint("Equal", 0, 1),
    Sketcher.Constraint("Equal", 1, 2),
    Sketcher.Constraint("Equal", 2, 3),
    Sketcher.Constraint("Horizontal", 1, 3, 2, 3),
    Sketcher.Constraint("Diameter", 0, 3.5),
    Sketcher.Constraint("DistanceY", -1, 1, 0, 3, 21.074129),
    Sketcher.Constraint("DistanceX", -1, 1, 1, 3, 20.833211),
    Sketcher.Constraint("DistanceX", 3, 3, -1, 1, 22.04853),
    Sketcher.Constraint("DistanceX", 2, 3, 0, 3, 42.881859),
    Sketcher.Constraint("DistanceX", -1, 1, 0, 3, 21.904763),
    Sketcher.Constraint("DistanceY", -1, 1, 1, 3, 82.274423),
    Sketcher.Constraint("DistanceY", -1, 1, 3, 3, 21.073966),
])
pocket17 = doc.addObject("PartDesign::Pocket", "Pocket016")
body.addObject(pocket17)
pocket17.Profile = sketch24
pocket17.Type = "ThroughAll"
pocket17.Reversed = True

# Sketch on XZ plane
sketch25 = doc.addObject("Sketcher::SketchObject", "Sketch024")
body.addObject(sketch25)
sketch25.AttachmentSupport = (doc.XZ_Plane, [""])
sketch25.MapMode = "FlatFace"
sketch25.AttachmentOffset = App.Placement(V(0, 0, 25.689106), App.Rotation())
add_polygon(sketch25, [(7, 26), (7, 53), (-4, 53), (-4, 26)])  # lines 0-3
sketch25.addConstraint([
    Sketcher.Constraint("Vertical", 0),
    Sketcher.Constraint("Horizontal", 1),
    Sketcher.Constraint("Vertical", 2),
    Sketcher.Constraint("Horizontal", 3),
    Sketcher.Constraint("DistanceX", 1, 2, 1, 1, 11.2),
    Sketcher.Constraint("DistanceY", 0, 1, 0, 2, 27.3),
    Sketcher.Constraint("DistanceX", -1, 1, 0, 2, 6.907826),
    Sketcher.Constraint("DistanceY", -1, 1, 0, 2, 53.228932),
])
pocket18 = doc.addObject("PartDesign::Pocket", "Pocket017")
body.addObject(pocket18)
pocket18.Profile = sketch25
pocket18.Type = "ThroughAll"
doc.recompute()

fillet9 = doc.addObject("PartDesign::Fillet", "Fillet008")
body.addObject(fillet9)
fillet9.Base = (pocket18, edges_at(pocket18, [
    (21, -0.072, 0),
    (-21, -0.072, 0),
    (0, -21.074, 0),
    (0, 20.93, 0),
]))
fillet9.Radius = 1
doc.recompute()

fillet10 = doc.addObject("PartDesign::Fillet", "Fillet009")
body.addObject(fillet10)
fillet10.Base = (fillet9, edges_at(fillet9, [
    (15, 0, 0),
    (0, -15, 0),
    (-15, 0, 0),
    (0, 15, 0),
]))
fillet10.Radius = 1

doc.recompute()
